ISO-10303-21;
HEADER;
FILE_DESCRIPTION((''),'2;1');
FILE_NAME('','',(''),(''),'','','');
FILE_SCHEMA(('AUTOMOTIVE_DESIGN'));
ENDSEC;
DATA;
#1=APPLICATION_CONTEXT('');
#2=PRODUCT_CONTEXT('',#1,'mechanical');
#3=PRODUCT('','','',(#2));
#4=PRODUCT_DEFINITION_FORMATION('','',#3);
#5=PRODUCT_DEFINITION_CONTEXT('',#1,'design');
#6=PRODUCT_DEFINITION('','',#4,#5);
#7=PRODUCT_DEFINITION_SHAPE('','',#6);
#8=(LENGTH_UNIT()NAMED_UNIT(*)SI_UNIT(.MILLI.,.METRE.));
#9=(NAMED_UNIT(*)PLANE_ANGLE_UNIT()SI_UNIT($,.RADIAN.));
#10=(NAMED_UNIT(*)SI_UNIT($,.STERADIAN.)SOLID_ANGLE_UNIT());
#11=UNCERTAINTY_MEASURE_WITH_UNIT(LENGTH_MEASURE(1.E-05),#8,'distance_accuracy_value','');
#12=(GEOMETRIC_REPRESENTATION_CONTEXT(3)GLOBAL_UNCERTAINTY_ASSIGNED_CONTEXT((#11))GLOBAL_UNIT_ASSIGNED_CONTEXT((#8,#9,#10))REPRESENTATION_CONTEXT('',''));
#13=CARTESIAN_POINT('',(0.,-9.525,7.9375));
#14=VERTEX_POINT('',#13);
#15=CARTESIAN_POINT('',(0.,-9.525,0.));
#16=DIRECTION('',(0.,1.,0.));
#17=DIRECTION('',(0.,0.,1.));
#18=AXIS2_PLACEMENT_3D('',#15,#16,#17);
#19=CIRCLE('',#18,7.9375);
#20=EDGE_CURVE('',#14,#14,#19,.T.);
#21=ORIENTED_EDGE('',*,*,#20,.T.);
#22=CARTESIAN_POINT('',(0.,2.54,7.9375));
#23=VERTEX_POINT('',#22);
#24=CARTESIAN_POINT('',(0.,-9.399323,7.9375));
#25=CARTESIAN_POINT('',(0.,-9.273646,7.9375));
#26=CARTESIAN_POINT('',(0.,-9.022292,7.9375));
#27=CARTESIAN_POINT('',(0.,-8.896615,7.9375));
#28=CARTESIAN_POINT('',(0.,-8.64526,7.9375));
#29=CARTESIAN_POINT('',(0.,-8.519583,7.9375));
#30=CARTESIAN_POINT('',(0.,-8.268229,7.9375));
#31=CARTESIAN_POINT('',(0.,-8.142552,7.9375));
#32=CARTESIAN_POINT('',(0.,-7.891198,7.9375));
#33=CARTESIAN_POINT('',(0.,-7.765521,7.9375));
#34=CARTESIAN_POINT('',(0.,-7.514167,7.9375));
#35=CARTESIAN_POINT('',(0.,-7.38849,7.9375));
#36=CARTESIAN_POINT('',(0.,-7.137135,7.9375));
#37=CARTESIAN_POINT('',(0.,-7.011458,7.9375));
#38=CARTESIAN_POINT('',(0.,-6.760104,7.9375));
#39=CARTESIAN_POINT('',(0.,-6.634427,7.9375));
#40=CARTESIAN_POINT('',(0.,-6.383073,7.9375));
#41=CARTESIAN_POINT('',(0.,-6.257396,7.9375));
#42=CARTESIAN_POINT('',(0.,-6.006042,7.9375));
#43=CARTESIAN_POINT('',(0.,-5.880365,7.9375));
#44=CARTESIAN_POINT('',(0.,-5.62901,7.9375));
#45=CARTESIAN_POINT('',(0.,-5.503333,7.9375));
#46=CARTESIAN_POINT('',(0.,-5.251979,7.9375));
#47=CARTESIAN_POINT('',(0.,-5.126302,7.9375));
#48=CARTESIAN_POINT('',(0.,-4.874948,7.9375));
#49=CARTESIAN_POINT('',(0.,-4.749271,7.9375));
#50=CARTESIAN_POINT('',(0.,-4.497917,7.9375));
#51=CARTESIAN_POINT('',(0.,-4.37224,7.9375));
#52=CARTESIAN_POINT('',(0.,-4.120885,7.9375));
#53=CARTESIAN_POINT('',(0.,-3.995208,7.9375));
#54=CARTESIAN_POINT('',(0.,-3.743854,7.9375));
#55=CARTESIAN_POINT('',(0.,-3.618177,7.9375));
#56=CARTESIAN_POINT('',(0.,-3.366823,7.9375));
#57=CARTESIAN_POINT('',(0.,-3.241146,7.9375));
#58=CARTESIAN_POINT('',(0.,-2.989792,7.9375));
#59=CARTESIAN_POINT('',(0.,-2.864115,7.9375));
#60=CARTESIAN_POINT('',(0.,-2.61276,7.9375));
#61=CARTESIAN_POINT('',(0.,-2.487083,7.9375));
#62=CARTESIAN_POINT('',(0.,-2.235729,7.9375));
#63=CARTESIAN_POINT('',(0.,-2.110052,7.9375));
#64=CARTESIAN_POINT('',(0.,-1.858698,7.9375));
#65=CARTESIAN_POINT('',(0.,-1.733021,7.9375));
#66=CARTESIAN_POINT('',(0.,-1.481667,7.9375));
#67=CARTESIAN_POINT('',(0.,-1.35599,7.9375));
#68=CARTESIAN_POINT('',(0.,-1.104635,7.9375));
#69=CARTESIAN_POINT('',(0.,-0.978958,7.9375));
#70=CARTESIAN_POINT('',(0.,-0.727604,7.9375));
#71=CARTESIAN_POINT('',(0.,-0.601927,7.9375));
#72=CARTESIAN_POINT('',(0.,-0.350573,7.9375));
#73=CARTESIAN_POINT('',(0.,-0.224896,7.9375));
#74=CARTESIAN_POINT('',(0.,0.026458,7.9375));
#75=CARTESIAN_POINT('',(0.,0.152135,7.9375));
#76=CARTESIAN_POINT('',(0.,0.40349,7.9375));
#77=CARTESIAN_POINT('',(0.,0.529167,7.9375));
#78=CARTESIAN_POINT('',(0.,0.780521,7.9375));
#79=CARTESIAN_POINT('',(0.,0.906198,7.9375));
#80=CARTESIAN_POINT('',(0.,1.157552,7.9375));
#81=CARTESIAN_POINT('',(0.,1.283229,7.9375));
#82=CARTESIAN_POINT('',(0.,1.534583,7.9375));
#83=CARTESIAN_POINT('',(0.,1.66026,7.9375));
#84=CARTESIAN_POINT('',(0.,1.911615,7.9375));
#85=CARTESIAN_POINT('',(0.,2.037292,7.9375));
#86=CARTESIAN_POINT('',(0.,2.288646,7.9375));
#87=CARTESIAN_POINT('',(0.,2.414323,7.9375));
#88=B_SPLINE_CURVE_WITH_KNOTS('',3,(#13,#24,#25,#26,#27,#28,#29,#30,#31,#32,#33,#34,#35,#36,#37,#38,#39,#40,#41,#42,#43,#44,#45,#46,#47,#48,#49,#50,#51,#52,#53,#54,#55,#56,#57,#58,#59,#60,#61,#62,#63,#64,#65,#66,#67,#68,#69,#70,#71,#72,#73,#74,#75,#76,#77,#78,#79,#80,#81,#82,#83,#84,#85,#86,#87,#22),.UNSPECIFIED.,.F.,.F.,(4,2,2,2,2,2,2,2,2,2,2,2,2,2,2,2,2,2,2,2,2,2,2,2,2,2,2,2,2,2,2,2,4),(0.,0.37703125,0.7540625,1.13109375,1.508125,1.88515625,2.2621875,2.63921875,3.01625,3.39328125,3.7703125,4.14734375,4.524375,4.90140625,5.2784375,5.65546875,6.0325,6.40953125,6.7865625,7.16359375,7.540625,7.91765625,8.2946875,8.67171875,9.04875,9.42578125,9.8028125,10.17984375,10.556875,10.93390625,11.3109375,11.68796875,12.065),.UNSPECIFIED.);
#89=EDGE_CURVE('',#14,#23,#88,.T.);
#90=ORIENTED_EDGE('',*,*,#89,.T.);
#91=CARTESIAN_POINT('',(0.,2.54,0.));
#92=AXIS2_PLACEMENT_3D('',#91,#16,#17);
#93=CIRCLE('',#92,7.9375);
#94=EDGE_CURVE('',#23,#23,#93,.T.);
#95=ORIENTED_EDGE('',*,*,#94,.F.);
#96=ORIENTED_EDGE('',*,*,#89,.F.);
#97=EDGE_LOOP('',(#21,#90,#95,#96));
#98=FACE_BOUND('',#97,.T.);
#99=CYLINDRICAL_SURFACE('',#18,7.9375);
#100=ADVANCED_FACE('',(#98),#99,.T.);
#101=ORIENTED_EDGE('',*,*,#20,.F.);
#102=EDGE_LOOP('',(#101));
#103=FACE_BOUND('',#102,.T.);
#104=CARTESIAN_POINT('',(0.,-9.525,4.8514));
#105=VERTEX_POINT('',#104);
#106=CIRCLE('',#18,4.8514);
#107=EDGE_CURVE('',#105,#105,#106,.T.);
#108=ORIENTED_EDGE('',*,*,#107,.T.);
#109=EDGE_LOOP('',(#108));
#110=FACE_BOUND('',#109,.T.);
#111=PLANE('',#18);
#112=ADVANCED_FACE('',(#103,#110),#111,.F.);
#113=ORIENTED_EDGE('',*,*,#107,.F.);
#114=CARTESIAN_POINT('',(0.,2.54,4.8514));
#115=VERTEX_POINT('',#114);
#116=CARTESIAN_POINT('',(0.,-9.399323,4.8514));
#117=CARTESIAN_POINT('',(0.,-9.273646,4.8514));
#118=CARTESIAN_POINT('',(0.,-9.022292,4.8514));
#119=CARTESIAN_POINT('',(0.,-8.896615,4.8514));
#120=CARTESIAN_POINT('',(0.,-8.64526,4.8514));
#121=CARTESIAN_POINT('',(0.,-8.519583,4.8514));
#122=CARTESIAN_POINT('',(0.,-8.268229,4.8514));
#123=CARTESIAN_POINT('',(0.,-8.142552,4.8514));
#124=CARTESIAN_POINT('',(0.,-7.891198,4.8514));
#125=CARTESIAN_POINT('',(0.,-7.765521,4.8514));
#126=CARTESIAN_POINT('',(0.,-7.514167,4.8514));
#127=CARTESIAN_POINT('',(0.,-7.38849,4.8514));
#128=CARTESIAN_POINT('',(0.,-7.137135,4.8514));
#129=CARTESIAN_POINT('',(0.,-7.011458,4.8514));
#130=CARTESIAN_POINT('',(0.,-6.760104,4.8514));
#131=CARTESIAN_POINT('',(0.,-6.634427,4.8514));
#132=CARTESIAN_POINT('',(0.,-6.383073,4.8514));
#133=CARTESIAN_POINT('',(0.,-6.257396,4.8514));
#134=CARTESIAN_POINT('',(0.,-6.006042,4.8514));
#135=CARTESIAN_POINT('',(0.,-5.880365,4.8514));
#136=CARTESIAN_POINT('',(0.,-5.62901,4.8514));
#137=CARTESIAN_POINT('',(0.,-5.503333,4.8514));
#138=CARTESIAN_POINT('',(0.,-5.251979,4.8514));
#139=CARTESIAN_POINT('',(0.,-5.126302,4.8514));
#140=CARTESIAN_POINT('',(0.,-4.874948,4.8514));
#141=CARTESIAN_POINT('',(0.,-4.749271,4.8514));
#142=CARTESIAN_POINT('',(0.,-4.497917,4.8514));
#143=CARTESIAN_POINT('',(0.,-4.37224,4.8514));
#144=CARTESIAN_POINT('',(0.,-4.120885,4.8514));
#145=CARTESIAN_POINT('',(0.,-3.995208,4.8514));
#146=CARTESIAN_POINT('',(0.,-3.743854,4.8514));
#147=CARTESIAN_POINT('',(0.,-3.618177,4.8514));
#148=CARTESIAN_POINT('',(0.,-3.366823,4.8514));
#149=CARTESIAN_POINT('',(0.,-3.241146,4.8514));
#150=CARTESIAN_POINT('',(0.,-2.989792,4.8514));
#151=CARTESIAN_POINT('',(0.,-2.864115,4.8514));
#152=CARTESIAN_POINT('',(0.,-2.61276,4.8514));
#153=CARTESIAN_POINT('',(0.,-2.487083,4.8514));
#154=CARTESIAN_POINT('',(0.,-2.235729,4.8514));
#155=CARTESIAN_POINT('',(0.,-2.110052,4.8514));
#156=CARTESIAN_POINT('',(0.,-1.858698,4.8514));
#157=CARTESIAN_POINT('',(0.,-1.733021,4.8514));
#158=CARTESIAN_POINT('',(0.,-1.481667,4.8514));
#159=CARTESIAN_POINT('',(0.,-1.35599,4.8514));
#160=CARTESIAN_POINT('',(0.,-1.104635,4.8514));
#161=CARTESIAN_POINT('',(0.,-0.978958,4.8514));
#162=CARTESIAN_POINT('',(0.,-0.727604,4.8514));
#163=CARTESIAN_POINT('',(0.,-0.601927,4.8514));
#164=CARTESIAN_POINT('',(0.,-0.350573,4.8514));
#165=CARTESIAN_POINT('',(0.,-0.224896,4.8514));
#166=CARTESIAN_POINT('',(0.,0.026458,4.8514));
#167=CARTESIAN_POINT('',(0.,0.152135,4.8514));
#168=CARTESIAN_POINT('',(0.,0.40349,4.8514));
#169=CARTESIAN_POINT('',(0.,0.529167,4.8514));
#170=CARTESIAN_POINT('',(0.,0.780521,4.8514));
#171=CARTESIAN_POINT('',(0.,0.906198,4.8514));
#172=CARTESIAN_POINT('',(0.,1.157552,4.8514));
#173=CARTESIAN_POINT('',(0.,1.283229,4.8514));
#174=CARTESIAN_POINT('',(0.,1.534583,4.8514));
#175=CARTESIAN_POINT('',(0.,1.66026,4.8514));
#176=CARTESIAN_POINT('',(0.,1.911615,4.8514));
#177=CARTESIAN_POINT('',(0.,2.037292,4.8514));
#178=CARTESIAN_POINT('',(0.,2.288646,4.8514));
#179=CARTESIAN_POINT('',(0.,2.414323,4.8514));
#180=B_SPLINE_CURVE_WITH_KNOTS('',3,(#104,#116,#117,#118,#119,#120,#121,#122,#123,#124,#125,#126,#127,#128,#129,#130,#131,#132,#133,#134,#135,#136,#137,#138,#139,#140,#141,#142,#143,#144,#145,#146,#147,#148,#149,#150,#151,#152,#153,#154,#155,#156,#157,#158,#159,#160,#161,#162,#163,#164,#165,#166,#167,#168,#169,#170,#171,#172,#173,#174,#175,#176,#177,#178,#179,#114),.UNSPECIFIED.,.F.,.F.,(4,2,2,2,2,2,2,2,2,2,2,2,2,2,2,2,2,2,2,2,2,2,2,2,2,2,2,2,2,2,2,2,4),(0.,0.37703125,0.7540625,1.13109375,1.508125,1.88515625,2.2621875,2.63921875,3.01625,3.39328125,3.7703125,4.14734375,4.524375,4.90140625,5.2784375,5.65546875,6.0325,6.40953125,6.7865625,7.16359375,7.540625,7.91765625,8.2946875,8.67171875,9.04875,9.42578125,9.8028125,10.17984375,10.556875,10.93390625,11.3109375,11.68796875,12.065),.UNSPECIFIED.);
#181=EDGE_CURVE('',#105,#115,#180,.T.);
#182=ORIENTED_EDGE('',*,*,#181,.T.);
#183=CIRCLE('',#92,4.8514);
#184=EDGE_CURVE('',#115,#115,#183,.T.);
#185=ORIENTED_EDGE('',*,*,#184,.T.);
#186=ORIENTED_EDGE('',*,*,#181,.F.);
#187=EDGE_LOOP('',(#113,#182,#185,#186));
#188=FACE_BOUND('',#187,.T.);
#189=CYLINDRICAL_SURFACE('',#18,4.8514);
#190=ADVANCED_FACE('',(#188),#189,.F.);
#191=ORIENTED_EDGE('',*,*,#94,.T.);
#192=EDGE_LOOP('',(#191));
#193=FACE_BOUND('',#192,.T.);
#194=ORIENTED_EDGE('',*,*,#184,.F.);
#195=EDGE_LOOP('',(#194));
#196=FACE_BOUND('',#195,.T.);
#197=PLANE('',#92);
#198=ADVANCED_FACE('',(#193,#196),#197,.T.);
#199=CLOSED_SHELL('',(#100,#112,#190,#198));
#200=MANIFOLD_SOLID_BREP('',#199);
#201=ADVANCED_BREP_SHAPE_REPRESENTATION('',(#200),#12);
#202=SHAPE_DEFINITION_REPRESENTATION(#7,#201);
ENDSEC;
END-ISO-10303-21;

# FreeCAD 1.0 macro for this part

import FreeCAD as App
import Part
import Sketcher

V = App.Vector
Q = App.Units.Quantity

doc = App.newDocument("Part")
params = doc.addObject("Spreadsheet::Sheet", "Params")
for row, (alias, value) in enumerate([
    ("sketch1_diameter", "0.625 in"),
    ("sketch1_diameter2", "0.382 in"),
    ("pad1_length", "0.1 in"),
    ("pad1_length2", "0.375 in"),
], start=1):
    params.set(f"A{row}", alias)
    params.set(f"B{row}", "=" + value)
    params.setAlias(f"B{row}", alias)

body = doc.addObject("PartDesign::Body", "Body")

# Sketch on XZ plane
sketch1 = body.newObject("Sketcher::SketchObject", "Sketch")
sketch1.AttachmentSupport = (doc.getObject("XZ_Plane"), [""])
sketch1.MapMode = "FlatFace"
sketch1.addGeometry([
    Part.Circle(V(0, 0, 0), V(0, 0, 1), 7.9),
    Part.Circle(V(0, 0, 0), V(0, 0, 1), 4.9),
], False)
sketch1.addConstraint([
    Sketcher.Constraint("Coincident", 0, 3, -1, 1),
    Sketcher.Constraint("Coincident", 1, 3, -1, 1),
    Sketcher.Constraint("Diameter", 0, Q("0.625 in")),
    Sketcher.Constraint("Diameter", 1, Q("0.382 in")),
])
sketch1.setExpression("Constraints[2]", "Params.sketch1_diameter")
sketch1.setExpression("Constraints[3]", "Params.sketch1_diameter2")
pad1 = body.newObject("PartDesign::Pad", "Pad")
pad1.Profile = sketch1
pad1.Type = "TwoLengths"
pad1.setExpression("Length", "Params.pad1_length")
pad1.setExpression("Length2", "Params.pad1_length2")
pad1.Reversed = True

doc.recompute()
